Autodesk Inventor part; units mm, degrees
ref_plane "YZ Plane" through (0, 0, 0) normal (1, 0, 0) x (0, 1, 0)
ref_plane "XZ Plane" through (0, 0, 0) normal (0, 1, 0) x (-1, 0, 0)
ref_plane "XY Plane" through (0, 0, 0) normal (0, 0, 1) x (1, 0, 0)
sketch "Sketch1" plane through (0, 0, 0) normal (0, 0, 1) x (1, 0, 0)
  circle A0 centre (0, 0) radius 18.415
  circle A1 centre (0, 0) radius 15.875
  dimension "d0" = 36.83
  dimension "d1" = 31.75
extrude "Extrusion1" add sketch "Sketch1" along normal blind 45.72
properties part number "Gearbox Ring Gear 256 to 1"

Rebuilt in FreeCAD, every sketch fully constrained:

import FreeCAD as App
import Part
import Sketcher
Q = App.Units.Quantity

doc = App.newDocument("Part")
body = doc.addObject("PartDesign::Body", "Body")

sketch1 = body.newObject("Sketcher::SketchObject", "Sketch")
sketch1.AttachmentSupport = (doc.getObject("XY_Plane"), [""])
sketch1.MapMode = "FlatFace"
sketch1.addGeometry([
    Part.Circle(App.Vector(0, 0, 0), App.Vector(0, 0, 1), 18),
    Part.Circle(App.Vector(0, 0, 0), App.Vector(0, 0, 1), 16),
], False)
sketch1.addConstraint([
    Sketcher.Constraint("Coincident", 0, 3, -1, 1),
    Sketcher.Constraint("Coincident", 1, 3, -1, 1),
    Sketcher.Constraint("Diameter", 0, Q("1.45 in")),
    Sketcher.Constraint("Diameter", 1, Q("1.25 in")),
])
pad1 = body.newObject("PartDesign::Pad", "Pad")
pad1.Profile = sketch1
pad1.Length = Q("1.8 in")

doc.recompute()
